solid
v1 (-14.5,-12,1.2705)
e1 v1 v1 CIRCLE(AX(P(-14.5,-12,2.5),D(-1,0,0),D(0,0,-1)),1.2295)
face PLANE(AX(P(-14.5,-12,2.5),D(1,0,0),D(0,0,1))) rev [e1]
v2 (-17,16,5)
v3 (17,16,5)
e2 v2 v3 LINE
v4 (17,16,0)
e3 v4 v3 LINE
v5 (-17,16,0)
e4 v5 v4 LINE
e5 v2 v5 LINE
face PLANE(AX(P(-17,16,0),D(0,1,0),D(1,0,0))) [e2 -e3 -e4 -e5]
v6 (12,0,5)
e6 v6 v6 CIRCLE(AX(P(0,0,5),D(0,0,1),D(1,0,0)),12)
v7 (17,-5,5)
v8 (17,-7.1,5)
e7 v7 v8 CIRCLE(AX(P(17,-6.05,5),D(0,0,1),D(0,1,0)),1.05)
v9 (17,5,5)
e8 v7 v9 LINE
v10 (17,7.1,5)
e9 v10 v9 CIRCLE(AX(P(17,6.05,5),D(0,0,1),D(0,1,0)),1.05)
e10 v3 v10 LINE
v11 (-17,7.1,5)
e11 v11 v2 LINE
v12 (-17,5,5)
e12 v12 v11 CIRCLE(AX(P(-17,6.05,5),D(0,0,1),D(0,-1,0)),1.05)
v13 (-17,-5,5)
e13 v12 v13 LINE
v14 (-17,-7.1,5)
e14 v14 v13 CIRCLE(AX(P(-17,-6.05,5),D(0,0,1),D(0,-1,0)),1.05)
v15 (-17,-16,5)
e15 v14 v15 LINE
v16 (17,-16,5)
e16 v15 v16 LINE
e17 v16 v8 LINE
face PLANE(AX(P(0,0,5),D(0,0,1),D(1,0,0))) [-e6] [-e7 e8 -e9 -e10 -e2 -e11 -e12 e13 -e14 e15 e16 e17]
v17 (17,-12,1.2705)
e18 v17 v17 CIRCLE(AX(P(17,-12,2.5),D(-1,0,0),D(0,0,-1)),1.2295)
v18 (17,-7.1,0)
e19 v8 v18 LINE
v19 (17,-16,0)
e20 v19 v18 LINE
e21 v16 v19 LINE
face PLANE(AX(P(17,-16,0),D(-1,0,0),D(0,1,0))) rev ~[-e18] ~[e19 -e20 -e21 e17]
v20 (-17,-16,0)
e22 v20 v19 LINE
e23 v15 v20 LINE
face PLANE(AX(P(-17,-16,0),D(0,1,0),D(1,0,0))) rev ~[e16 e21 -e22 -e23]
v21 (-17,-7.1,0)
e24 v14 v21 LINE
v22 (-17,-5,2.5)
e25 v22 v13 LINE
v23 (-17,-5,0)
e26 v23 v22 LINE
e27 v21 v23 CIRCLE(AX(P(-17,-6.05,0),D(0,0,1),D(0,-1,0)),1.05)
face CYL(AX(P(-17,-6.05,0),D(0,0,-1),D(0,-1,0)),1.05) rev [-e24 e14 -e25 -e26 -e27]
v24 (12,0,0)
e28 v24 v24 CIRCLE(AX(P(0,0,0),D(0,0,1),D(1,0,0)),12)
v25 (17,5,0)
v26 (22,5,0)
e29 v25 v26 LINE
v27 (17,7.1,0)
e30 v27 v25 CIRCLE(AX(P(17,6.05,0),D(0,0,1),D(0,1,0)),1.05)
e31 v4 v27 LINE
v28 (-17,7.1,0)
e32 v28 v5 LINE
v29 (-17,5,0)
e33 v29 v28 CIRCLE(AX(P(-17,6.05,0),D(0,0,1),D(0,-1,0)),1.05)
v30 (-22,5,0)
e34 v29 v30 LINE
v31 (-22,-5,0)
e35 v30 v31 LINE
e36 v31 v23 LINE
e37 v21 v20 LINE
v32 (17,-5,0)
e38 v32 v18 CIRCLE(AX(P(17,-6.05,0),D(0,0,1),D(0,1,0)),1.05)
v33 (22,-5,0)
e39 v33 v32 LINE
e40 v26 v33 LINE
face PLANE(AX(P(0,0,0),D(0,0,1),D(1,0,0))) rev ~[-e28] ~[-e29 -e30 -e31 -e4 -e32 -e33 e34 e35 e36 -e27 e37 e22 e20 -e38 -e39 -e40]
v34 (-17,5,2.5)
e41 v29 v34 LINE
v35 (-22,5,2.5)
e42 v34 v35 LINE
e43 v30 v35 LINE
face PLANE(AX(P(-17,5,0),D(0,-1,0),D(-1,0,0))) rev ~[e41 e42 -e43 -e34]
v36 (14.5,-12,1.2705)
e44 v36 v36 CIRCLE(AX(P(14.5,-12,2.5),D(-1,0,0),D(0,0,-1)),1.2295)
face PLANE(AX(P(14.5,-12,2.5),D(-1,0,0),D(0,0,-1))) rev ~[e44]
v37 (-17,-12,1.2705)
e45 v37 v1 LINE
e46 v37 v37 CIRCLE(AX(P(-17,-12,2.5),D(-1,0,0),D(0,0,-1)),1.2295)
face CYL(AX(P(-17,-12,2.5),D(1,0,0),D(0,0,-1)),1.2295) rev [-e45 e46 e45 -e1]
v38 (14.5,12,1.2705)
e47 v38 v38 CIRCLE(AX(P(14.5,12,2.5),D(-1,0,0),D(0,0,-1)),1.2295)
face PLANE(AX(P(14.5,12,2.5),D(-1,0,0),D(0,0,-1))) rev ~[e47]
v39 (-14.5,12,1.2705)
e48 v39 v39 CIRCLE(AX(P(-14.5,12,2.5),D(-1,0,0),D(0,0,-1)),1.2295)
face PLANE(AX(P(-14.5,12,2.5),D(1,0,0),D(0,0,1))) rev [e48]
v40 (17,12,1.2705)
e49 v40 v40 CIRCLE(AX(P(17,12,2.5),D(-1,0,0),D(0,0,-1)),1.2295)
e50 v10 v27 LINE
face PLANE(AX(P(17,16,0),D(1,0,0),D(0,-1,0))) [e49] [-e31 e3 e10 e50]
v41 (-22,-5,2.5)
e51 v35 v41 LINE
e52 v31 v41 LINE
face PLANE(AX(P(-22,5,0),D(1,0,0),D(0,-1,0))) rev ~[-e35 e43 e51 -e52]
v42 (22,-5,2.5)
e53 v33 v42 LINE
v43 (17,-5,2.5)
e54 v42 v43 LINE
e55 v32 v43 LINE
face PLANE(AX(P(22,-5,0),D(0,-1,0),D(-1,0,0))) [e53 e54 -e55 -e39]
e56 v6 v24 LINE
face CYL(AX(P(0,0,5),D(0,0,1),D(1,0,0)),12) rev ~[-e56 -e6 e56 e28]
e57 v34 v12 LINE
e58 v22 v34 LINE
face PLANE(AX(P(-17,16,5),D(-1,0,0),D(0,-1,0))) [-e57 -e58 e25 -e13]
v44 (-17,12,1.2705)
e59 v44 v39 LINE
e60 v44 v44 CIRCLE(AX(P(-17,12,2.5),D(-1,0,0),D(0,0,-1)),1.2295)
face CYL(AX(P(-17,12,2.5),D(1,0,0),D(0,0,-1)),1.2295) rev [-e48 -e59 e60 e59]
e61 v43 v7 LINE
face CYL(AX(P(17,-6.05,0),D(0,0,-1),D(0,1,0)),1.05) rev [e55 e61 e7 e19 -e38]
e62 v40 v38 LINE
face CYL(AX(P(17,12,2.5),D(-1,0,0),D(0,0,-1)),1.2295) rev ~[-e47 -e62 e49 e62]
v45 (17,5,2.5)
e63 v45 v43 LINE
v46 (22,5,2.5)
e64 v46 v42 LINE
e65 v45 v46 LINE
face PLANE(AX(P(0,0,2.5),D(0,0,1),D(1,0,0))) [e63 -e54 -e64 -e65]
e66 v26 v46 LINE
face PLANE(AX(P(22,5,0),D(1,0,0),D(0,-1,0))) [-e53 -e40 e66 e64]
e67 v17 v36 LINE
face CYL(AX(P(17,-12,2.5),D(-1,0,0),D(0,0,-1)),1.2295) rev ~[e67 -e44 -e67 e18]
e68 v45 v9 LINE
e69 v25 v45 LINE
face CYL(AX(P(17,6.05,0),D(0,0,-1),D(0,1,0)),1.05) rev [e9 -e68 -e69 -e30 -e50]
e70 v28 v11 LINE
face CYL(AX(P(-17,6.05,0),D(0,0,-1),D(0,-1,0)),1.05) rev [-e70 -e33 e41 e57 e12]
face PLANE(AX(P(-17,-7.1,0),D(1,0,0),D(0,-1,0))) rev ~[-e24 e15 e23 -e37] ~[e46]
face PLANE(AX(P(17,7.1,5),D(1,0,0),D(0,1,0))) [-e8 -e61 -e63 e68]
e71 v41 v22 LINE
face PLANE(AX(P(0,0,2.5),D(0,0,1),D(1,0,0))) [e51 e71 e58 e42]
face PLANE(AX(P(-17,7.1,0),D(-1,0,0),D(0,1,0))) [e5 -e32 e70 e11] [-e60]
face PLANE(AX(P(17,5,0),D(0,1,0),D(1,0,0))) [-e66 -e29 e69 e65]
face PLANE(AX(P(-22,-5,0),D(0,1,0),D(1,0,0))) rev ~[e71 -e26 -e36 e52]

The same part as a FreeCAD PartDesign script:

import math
import FreeCAD as App
import Part
import Sketcher
from FreeCAD import Vector
Q = App.Units.Quantity


def add_polygon(sketch, points):
    """Adds a closed chain of lines whose ends are joined by coincident constraints."""
    first, n = sketch.GeometryCount, len(points)
    for a, b in zip(points, points[1:] + points[:1]):
        sketch.addGeometry(Part.LineSegment(App.Vector(*a, 0), App.Vector(*b, 0)), False)
    for i in range(n):
        sketch.addConstraint(Sketcher.Constraint("Coincident", first + i, 2, first + (i + 1) % n, 1))

doc = App.newDocument("Part")
body = doc.addObject("PartDesign::Body", "Body")

# Sketch on XY plane
sketch1 = body.newObject("Sketcher::SketchObject", "Sketch")
sketch1.AttachmentSupport = (doc.getObject("XY_Plane"), [""])
sketch1.MapMode = "FlatFace"
sketch1.addGeometry([
    Part.LineSegment(Vector(-17, 16, 0), Vector(-17, 7.1, 0)),  # 0
    Part.ArcOfCircle(Part.Circle(Vector(-17, 6, 0), Vector(0, 0, 1), 1), math.radians(-90), math.radians(90)),  # 1
    Part.LineSegment(Vector(-17, 5, 0), Vector(-22, 5, 0)),  # 2
    Part.LineSegment(Vector(-22, 5, 0), Vector(-22, -5, 0)),  # 3
    Part.LineSegment(Vector(-22, -5, 0), Vector(-17, -5, 0)),  # 4
    Part.ArcOfCircle(Part.Circle(Vector(-17, -6, 0), Vector(0, 0, 1), 1), math.radians(-90), math.radians(90)),  # 5
    Part.LineSegment(Vector(-17, -7.1, 0), Vector(-17, -16, 0)),  # 6
    Part.LineSegment(Vector(-17, -16, 0), Vector(17, -16, 0)),  # 7
    Part.LineSegment(Vector(17, -16, 0), Vector(17, -7.1, 0)),  # 8
    Part.ArcOfCircle(Part.Circle(Vector(17, -6, 0), Vector(0, 0, 1), 1), math.radians(90), math.radians(270)),  # 9
    Part.LineSegment(Vector(17, -5, 0), Vector(22, -5, 0)),  # 10
    Part.LineSegment(Vector(22, -5, 0), Vector(22, 5, 0)),  # 11
    Part.LineSegment(Vector(22, 5, 0), Vector(17, 5, 0)),  # 12
    Part.ArcOfCircle(Part.Circle(Vector(17, 6, 0), Vector(0, 0, 1), 1), math.radians(90), math.radians(270)),  # 13
    Part.LineSegment(Vector(17, 7.1, 0), Vector(17, 16, 0)),  # 14
    Part.LineSegment(Vector(17, 16, 0), Vector(-17, 16, 0)),  # 15
], False)
sketch1.addConstraint([
    Sketcher.Constraint("Coincident", 0, 2, 1, 2),
    Sketcher.Constraint("Tangent", 1, 1, 2, 1),
    Sketcher.Constraint("Coincident", 2, 2, 3, 1),
    Sketcher.Constraint("Coincident", 3, 2, 4, 1),
    Sketcher.Constraint("Tangent", 4, 2, 5, 2),
    Sketcher.Constraint("Coincident", 5, 1, 6, 1),
    Sketcher.Constraint("Coincident", 6, 2, 7, 1),
    Sketcher.Constraint("Coincident", 7, 2, 8, 1),
    Sketcher.Constraint("Coincident", 8, 2, 9, 2),
    Sketcher.Constraint("Tangent", 9, 1, 10, 1),
    Sketcher.Constraint("Coincident", 10, 2, 11, 1),
    Sketcher.Constraint("Coincident", 11, 2, 12, 1),
    Sketcher.Constraint("Tangent", 12, 2, 13, 2),
    Sketcher.Constraint("Coincident", 13, 1, 14, 1),
    Sketcher.Constraint("Coincident", 14, 2, 15, 1),
    Sketcher.Constraint("Coincident", 15, 2, 0, 1),
    Sketcher.Constraint("Vertical", 0),
    Sketcher.Constraint("Horizontal", 2),
    Sketcher.Constraint("Vertical", 3),
    Sketcher.Constraint("Horizontal", 4),
    Sketcher.Constraint("Vertical", 6),
    Sketcher.Constraint("Horizontal", 7),
    Sketcher.Constraint("Vertical", 8),
    Sketcher.Constraint("Horizontal", 10),
    Sketcher.Constraint("Vertical", 11),
    Sketcher.Constraint("Horizontal", 12),
    Sketcher.Constraint("Vertical", 14),
    Sketcher.Constraint("Horizontal", 15),
    Sketcher.Constraint("Equal", 1, 5),
    Sketcher.Constraint("Equal", 5, 9),
    Sketcher.Constraint("Equal", 9, 13),
    Sketcher.Constraint("Symmetric", 1, 3, 9, 3, -1, 1),
    Sketcher.Constraint("Symmetric", 5, 3, 13, 3, -1, 1),
    Sketcher.Constraint("Symmetric", 6, 2, 14, 2, -1, 1),
    Sketcher.Constraint("Symmetric", 5, 3, 9, 3, -2),
    Sketcher.Constraint("Vertical", 5, 3, 0, 2),
    Sketcher.Constraint("Vertical", 4, 2, 5, 1),
    Sketcher.Constraint("Vertical", 13, 3, 7, 2),
    Sketcher.Constraint("Equal", 4, 10),
    Sketcher.Constraint("DistanceX", 2, 2, 2, 1, Q("5 mm")),
    Sketcher.Constraint("DistanceX", 7, 1, 7, 2, Q("34 mm")),
    Sketcher.Constraint("Radius", 1, Q("1.05 mm")),
    Sketcher.Constraint("DistanceY", -1, 1, 1, 1, Q("5 mm")),
    Sketcher.Constraint("DistanceY", 6, 2, 4, 2, Q("11 mm")),
])
pad1 = body.newObject("PartDesign::Pad", "Pad")
pad1.Profile = sketch1
pad1.Length = 5

# Sketch on XY plane
sketch2 = body.newObject("Sketcher::SketchObject", "Sketch001")
sketch2.AttachmentSupport = (doc.getObject("XY_Plane"), [""])
sketch2.MapMode = "FlatFace"
sketch2.AttachmentOffset = App.Placement(Vector(0, 0, 5), App.Rotation())
add_polygon(sketch2, [(-17, -24), (-17, 19), (-28, 19), (-28, -24)])  # lines 0-3
add_polygon(sketch2, [(17, 14), (17, -20), (34, -20), (34, 14)])  # lines 4-7
sketch2.addConstraint([
    Sketcher.Constraint("Vertical", 0),
    Sketcher.Constraint("Horizontal", 1),
    Sketcher.Constraint("Vertical", 2),
    Sketcher.Constraint("Horizontal", 3),
    Sketcher.Constraint("Vertical", 4),
    Sketcher.Constraint("Horizontal", 5),
    Sketcher.Constraint("Vertical", 6),
    Sketcher.Constraint("Horizontal", 7),
    Sketcher.Constraint("DistanceX", 0, 2, -1, 1, Q("17 mm")),
    Sketcher.Constraint("DistanceX", -1, 1, 4, 2, Q("17 mm")),
    Sketcher.Constraint("DistanceX", 5, 1, 5, 2, Q("17.37 mm")),
    Sketcher.Constraint("DistanceY", 0, 1, 0, 2, Q("42.56 mm")),
    Sketcher.Constraint("DistanceX", 1, 2, 1, 1, Q("11.2886 mm")),
    Sketcher.Constraint("DistanceY", 4, 2, 4, 1, Q("33.7955 mm")),
    Sketcher.Constraint("DistanceY", -1, 1, 6, 2, Q("13.565 mm")),
    Sketcher.Constraint("DistanceY", -1, 1, 0, 2, Q("18.8938 mm")),
])
pocket1 = body.newObject("PartDesign::Pocket", "Pocket")
pocket1.Profile = sketch2
pocket1.Length = 2.5

# Sketch on YZ plane
sketch3 = body.newObject("Sketcher::SketchObject", "Sketch002")
sketch3.AttachmentSupport = (doc.getObject("YZ_Plane"), [""])
sketch3.MapMode = "FlatFace"
sketch3.AttachmentOffset = App.Placement(Vector(0, 0, 17), App.Rotation())
sketch3.addGeometry([
    Part.Circle(Vector(-12, 2.5, 0), Vector(0, 0, 1), 1.2),
    Part.Circle(Vector(12, 2.5, 0), Vector(0, 0, 1), 1.2),
], False)
sketch3.addConstraint([
    Sketcher.Constraint("Equal", 0, 1),
    Sketcher.Constraint("Symmetric", 0, 3, 1, 3, -2),
    Sketcher.Constraint("Diameter", 0, Q("2.459 mm")),
    Sketcher.Constraint("DistanceX", 0, 3, -1, 1, Q("12 mm")),
    Sketcher.Constraint("DistanceY", -1, 1, 0, 3, Q("2.5 mm")),
])
doc.recompute()
hole = body.newObject("PartDesign::Hole", "Hole")
hole.Profile = sketch3
hole.ThreadType = "None"
hole.Diameter = 2.459
hole.DepthType = "Dimension"
hole.Depth = 2.5
hole.DrillPoint = "Flat"
doc.recompute()

mirrored = body.newObject("PartDesign::Mirrored", "Mirrored")
mirrored.Originals = [hole]
mirrored.MirrorPlane = (doc.getObject("YZ_Plane"), [""])
body.Tip = mirrored

# Sketch on XY plane
sketch4 = body.newObject("Sketcher::SketchObject", "Sketch003")
sketch4.AttachmentSupport = (doc.getObject("XY_Plane"), [""])
sketch4.MapMode = "FlatFace"
sketch4.AttachmentOffset = App.Placement(Vector(0, 0, 5), App.Rotation())
sketch4.addGeometry(Part.Circle(Vector(0, 0, 0), Vector(0, 0, 1), 12), False)
sketch4.addConstraint([
    Sketcher.Constraint("Coincident", 0, 3, -1, 1),
    Sketcher.Constraint("Diameter", 0, Q("24 mm")),
])
pocket2 = body.newObject("PartDesign::Pocket", "Pocket001")
pocket2.Profile = sketch4
pocket2.Length = 10

doc.recompute()
